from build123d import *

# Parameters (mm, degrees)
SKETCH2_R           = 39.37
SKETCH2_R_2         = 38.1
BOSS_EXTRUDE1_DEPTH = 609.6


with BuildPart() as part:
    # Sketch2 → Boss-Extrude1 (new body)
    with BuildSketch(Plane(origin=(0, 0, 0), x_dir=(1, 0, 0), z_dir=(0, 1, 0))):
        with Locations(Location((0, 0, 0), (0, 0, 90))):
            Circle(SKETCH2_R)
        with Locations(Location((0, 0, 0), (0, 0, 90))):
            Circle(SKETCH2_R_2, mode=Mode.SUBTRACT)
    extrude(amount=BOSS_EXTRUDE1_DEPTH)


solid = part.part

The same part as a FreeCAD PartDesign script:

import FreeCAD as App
import Part
import Sketcher

V = App.Vector
Q = App.Units.Quantity

doc = App.newDocument("Part")
body = doc.addObject("PartDesign::Body", "Body")

# Sketch on XZ plane
sketch1 = doc.addObject("Sketcher::SketchObject", "Sketch")
body.addObject(sketch1)
sketch1.AttachmentSupport = (doc.XZ_Plane, [""])
sketch1.MapMode = "FlatFace"
sketch1.addGeometry([
    Part.Circle(V(0, 0, 0), V(0, 0, 1), 39),
    Part.Circle(V(0, 0, 0), V(0, 0, 1), 38),
], False)
sketch1.addConstraint([
    Sketcher.Constraint("Coincident", 0, 3, -1, 1),
    Sketcher.Constraint("Coincident", 1, 3, -1, 1),
    Sketcher.Constraint("Diameter", 1, Q("3 in")),
    Sketcher.Constraint("Diameter", 0, Q("3.1 in")),
])
pad1 = doc.addObject("PartDesign::Pad", "Pad")
body.addObject(pad1)
pad1.Profile = sketch1
pad1.Length = Q("24 in")
pad1.Reversed = True

doc.recompute()
